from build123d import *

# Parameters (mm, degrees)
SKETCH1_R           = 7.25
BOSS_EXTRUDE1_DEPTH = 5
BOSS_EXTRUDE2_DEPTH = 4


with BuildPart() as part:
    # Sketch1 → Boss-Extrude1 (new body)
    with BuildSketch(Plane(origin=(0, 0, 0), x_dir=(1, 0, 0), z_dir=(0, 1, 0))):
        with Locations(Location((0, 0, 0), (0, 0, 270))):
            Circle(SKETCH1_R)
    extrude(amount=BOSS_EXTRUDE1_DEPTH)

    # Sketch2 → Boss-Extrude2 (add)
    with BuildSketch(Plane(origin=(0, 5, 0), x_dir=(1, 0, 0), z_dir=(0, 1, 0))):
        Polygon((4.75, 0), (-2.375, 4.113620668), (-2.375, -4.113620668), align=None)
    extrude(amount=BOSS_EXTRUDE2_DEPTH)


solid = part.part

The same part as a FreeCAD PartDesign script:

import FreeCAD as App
import Part
import Sketcher
from FreeCAD import Vector
Q = App.Units.Quantity


def add_polygon(sketch, points):
    """Adds a closed chain of lines whose ends are joined by coincident constraints."""
    first, n = sketch.GeometryCount, len(points)
    for a, b in zip(points, points[1:] + points[:1]):
        sketch.addGeometry(Part.LineSegment(App.Vector(*a, 0), App.Vector(*b, 0)), False)
    for i in range(n):
        sketch.addConstraint(Sketcher.Constraint("Coincident", first + i, 2, first + (i + 1) % n, 1))

doc = App.newDocument("Part")
body = doc.addObject("PartDesign::Body", "Body")

# Sketch on XZ plane
sketch1 = doc.addObject("Sketcher::SketchObject", "Sketch")
body.addObject(sketch1)
sketch1.AttachmentSupport = (doc.XZ_Plane, [""])
sketch1.MapMode = "FlatFace"
sketch1.addGeometry(Part.Circle(Vector(0, 0, 0), Vector(0, 0, 1), 7), False)
sketch1.addConstraint([
    Sketcher.Constraint("Coincident", 0, 3, -1, 1),
    Sketcher.Constraint("Diameter", 0, Q("14.5 mm")),
])
pad1 = doc.addObject("PartDesign::Pad", "Pad")
body.addObject(pad1)
pad1.Profile = sketch1
pad1.Length = 5
pad1.Reversed = True

# Sketch on XZ plane
sketch2 = doc.addObject("Sketcher::SketchObject", "Sketch001")
body.addObject(sketch2)
sketch2.AttachmentSupport = (doc.XZ_Plane, [""])
sketch2.MapMode = "FlatFace"
sketch2.AttachmentOffset = App.Placement(Vector(0, 0, -5), App.Rotation())
add_polygon(sketch2, [(5, 0), (-2, -4), (-2, 4)])  # lines 0-2
sketch2.addConstraint([
    Sketcher.Constraint("Vertical", 1),
    Sketcher.Constraint("PointOnObject", 2, 2, -1),
    Sketcher.Constraint("Equal", 0, 2),
    Sketcher.Constraint("Angle", 0, Q("-150 deg")),
    Sketcher.Constraint("DistanceX", -1, 1, 2, 2, Q("4.75 mm")),
    Sketcher.Constraint("DistanceX", 0, 2, -1, 1, Q("2.375 mm")),
])
pad2 = doc.addObject("PartDesign::Pad", "Pad001")
body.addObject(pad2)
pad2.Profile = sketch2
pad2.Length = 4
pad2.Reversed = True

doc.recompute()
